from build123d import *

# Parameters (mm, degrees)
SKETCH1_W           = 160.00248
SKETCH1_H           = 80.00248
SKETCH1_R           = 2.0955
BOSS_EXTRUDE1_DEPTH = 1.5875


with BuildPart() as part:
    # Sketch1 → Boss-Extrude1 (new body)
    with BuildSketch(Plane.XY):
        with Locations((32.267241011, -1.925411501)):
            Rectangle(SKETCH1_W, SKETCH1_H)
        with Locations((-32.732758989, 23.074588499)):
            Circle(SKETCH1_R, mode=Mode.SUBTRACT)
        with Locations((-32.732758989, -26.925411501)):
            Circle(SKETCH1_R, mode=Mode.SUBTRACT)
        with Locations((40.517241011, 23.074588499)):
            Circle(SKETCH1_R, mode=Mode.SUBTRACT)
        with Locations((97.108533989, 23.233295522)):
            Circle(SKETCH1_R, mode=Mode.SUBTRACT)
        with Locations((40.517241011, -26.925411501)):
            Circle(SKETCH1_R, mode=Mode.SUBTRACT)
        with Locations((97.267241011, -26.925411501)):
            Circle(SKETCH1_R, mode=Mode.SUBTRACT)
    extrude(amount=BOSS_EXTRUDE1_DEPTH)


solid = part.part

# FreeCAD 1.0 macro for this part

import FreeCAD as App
import Part
import Sketcher
from FreeCAD import Vector
Q = App.Units.Quantity


def add_polygon(sketch, points):
    """Adds a closed chain of lines whose ends are joined by coincident constraints."""
    first, n = sketch.GeometryCount, len(points)
    for a, b in zip(points, points[1:] + points[:1]):
        sketch.addGeometry(Part.LineSegment(App.Vector(*a, 0), App.Vector(*b, 0)), False)
    for i in range(n):
        sketch.addConstraint(Sketcher.Constraint("Coincident", first + i, 2, first + (i + 1) % n, 1))

doc = App.newDocument("Part")
body = doc.addObject("PartDesign::Body", "Body")

sketch1 = body.newObject("Sketcher::SketchObject", "Sketch")
sketch1.AttachmentSupport = (doc.getObject("XY_Plane"), [""])
sketch1.MapMode = "FlatFace"
add_polygon(sketch1, [(-47.7, 38.1), (-47.7, -41.9), (112.3, -41.9), (112.3, 38.1)])
sketch1.addGeometry(Part.Circle(Vector(-32.7, -26.9, 0), Vector(0, 0, 1), 2.1), False)
sketch1.addGeometry(Part.Circle(Vector(40.5, -26.9, 0), Vector(0, 0, 1), 2.1), False)
sketch1.addGeometry(Part.Circle(Vector(97.3, -26.9, 0), Vector(0, 0, 1), 2.1), False)
sketch1.addGeometry(Part.Circle(Vector(-32.7, 23.1, 0), Vector(0, 0, 1), 2.1), False)
sketch1.addGeometry(Part.Circle(Vector(40.5, 23.1, 0), Vector(0, 0, 1), 2.1), False)
sketch1.addGeometry(Part.Circle(Vector(97.1, 23.2, 0), Vector(0, 0, 1), 2.1), False)
sketch1.addConstraint([
    Sketcher.Constraint("Vertical", 0),
    Sketcher.Constraint("Horizontal", 1),
    Sketcher.Constraint("Vertical", 2),
    Sketcher.Constraint("Horizontal", 3),
    Sketcher.Constraint("Equal", 4, 5),
    Sketcher.Constraint("Equal", 5, 6),
    Sketcher.Constraint("Equal", 6, 7),
    Sketcher.Constraint("Equal", 7, 8),
    Sketcher.Constraint("Equal", 8, 9),
    Sketcher.Constraint("Horizontal", 4, 3, 5, 3),
    Sketcher.Constraint("Horizontal", 5, 3, 6, 3),
    Sketcher.Constraint("Horizontal", 7, 3, 8, 3),
    Sketcher.Constraint("Vertical", 4, 3, 7, 3),
    Sketcher.Constraint("Vertical", 5, 3, 8, 3),
    Sketcher.Constraint("Diameter", 4, Q("0.165 in")),
    Sketcher.Constraint("DistanceX", 0, 2, 4, 3, Q("0.5906 in")),
    Sketcher.Constraint("DistanceY", 0, 2, 4, 3, Q("0.5906 in")),
    Sketcher.Constraint("DistanceX", 6, 3, 1, 2, Q("0.5906 in")),
    Sketcher.Constraint("DistanceY", 8, 3, 2, 2, Q("0.5906 in")),
    Sketcher.Constraint("DistanceX", 1, 1, 1, 2, 160.00248),
    Sketcher.Constraint("DistanceY", 0, 2, 0, 1, 80.00248),
    Sketcher.Constraint("DistanceX", 0, 2, -1, 1, 47.733999),
    Sketcher.Constraint("DistanceX", 4, 3, 5, 3, 73.25),
    Sketcher.Constraint("DistanceY", 4, 3, -1, 1, 26.925412),
    Sketcher.Constraint("DistanceX", -1, 1, 9, 3, 97.108534),
    Sketcher.Constraint("DistanceY", -1, 1, 9, 3, 23.233296),
])
pad1 = body.newObject("PartDesign::Pad", "Pad")
pad1.Profile = sketch1
pad1.Length = Q("0.0625 in")

doc.recompute()
